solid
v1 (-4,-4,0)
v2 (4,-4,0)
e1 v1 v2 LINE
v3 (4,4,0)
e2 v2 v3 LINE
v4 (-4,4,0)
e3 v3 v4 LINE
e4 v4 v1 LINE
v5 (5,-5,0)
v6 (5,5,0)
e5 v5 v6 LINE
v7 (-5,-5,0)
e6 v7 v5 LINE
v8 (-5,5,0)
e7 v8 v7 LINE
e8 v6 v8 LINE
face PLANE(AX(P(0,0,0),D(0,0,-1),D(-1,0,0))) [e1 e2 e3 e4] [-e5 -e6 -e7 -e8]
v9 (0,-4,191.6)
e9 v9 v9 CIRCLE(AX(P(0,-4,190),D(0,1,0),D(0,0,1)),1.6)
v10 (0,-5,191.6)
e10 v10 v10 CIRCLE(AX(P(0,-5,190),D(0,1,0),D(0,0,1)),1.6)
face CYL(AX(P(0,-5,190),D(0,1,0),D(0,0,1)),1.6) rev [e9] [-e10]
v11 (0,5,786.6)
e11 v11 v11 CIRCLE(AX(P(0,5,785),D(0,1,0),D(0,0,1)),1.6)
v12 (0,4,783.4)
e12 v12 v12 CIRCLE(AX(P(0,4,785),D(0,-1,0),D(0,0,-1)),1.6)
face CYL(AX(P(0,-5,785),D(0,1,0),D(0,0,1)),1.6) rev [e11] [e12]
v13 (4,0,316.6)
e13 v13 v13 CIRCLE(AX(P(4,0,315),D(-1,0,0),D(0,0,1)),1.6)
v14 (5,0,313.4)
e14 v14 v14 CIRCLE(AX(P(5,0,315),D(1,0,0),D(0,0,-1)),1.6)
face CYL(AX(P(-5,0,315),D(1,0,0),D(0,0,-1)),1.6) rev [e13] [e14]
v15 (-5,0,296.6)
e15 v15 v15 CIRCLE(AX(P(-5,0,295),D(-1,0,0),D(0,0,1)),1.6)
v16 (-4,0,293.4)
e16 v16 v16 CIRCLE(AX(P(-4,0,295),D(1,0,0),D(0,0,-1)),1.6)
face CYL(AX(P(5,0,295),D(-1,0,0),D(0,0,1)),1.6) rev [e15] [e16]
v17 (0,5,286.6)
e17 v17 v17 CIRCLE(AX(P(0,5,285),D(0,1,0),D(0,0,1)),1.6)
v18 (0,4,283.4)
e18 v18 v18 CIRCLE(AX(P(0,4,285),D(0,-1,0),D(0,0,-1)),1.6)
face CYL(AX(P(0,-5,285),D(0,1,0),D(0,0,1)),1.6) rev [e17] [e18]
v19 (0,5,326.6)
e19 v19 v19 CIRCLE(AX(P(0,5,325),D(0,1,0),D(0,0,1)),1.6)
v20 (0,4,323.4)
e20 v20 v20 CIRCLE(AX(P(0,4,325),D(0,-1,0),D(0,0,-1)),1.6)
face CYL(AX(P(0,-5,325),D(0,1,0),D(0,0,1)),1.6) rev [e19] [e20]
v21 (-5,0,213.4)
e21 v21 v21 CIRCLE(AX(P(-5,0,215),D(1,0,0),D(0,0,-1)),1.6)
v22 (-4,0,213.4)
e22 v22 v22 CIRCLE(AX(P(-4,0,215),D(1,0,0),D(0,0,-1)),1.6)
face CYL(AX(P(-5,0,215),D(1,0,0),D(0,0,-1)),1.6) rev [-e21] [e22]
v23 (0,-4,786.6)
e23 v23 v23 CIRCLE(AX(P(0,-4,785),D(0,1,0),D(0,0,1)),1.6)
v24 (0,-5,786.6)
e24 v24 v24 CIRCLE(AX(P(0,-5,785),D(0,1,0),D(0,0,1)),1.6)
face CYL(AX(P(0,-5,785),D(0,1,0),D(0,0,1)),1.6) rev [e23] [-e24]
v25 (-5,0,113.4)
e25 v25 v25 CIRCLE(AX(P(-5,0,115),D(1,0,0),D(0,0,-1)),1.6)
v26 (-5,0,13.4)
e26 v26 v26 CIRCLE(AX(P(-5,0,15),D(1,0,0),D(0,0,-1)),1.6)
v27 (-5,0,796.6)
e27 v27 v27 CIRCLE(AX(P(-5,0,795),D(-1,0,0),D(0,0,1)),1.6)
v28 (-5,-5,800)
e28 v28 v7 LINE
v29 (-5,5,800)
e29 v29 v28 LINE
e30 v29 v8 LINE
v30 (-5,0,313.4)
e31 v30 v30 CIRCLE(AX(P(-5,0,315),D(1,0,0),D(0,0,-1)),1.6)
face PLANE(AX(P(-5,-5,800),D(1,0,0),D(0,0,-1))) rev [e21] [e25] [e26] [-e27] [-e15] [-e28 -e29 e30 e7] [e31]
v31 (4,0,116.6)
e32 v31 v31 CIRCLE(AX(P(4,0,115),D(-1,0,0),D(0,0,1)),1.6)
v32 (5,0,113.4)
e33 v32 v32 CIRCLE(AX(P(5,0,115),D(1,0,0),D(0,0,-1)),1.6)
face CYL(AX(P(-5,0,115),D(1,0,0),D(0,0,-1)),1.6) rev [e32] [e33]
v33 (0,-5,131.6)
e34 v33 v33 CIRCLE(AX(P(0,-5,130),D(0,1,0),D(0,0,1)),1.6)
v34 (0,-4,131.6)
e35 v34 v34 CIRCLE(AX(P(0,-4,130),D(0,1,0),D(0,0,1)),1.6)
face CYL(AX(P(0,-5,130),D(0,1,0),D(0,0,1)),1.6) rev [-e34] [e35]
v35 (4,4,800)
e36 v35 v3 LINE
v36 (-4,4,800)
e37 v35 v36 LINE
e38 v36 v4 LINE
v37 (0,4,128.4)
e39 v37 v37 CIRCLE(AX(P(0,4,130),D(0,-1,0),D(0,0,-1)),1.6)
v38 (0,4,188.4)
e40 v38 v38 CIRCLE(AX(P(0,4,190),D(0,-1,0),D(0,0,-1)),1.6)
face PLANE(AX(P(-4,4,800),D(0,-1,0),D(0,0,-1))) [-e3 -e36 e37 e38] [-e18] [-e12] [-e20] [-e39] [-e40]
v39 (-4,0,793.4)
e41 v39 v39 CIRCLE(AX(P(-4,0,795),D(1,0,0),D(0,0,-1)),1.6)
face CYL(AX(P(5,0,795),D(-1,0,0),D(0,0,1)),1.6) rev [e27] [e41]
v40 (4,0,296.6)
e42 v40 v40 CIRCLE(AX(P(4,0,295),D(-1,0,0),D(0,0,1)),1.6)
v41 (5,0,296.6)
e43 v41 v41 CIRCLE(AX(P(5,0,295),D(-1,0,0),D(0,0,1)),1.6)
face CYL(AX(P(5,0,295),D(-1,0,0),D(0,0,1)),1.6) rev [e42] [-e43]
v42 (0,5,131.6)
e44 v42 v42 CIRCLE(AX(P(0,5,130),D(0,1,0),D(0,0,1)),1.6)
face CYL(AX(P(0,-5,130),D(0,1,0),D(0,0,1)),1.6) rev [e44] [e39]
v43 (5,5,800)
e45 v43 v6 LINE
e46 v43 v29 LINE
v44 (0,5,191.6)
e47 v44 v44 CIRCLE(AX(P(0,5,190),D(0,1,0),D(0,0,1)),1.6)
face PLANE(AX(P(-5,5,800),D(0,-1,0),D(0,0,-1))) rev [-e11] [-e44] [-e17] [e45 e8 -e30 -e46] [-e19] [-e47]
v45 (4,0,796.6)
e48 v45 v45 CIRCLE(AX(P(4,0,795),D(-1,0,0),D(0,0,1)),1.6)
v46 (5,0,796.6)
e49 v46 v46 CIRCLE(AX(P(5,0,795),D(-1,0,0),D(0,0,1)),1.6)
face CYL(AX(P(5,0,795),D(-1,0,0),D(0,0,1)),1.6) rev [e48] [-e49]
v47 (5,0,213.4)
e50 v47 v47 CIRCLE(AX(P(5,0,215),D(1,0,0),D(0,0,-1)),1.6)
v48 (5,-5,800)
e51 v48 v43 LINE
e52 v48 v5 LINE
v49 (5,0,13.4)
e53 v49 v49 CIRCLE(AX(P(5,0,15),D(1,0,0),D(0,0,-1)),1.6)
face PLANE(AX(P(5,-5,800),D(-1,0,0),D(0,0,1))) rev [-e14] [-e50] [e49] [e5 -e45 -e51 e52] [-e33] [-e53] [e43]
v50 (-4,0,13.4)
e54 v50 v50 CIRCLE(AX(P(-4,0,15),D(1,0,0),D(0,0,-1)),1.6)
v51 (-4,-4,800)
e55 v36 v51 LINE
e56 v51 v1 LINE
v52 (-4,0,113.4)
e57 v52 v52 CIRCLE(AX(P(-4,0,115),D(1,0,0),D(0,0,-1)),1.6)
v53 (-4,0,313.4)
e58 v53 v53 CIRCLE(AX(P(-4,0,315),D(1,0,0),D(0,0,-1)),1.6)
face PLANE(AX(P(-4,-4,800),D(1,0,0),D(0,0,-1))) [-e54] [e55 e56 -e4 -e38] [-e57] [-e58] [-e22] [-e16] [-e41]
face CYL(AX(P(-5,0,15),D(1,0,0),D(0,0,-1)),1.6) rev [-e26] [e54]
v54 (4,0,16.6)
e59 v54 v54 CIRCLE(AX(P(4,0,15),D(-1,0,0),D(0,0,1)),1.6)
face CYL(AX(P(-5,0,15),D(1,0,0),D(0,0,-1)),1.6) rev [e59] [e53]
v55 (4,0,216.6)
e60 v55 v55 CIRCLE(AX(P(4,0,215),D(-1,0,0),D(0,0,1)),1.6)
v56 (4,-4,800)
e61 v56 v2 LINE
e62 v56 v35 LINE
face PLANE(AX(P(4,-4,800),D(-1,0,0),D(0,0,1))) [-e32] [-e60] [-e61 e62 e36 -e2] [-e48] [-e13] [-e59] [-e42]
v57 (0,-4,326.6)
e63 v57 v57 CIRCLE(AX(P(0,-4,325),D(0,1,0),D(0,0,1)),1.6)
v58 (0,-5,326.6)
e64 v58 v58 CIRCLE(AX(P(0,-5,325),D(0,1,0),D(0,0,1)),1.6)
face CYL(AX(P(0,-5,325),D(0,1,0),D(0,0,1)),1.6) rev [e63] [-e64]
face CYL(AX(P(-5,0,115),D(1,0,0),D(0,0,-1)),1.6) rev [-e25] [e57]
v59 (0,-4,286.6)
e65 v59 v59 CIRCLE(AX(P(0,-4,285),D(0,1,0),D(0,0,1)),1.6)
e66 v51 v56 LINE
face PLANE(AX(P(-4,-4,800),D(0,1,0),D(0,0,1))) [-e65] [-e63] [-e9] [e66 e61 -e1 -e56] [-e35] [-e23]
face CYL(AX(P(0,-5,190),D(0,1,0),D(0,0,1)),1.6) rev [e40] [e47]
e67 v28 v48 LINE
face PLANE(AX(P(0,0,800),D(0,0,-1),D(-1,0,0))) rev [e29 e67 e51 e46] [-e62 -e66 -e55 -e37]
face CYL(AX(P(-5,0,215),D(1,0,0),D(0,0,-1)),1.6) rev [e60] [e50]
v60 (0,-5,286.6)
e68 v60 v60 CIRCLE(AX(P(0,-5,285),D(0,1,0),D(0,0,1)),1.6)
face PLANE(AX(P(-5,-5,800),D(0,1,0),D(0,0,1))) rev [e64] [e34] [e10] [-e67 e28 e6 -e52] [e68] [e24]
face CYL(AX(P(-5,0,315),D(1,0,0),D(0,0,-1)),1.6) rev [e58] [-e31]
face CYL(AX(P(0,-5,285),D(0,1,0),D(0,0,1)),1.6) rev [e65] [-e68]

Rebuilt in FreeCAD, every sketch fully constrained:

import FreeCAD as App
import Part
import Sketcher
Q = App.Units.Quantity


def add_polygon(sketch, points):
    """Adds a closed chain of lines whose ends are joined by coincident constraints."""
    first, n = sketch.GeometryCount, len(points)
    for a, b in zip(points, points[1:] + points[:1]):
        sketch.addGeometry(Part.LineSegment(App.Vector(*a, 0), App.Vector(*b, 0)), False)
    for i in range(n):
        sketch.addConstraint(Sketcher.Constraint("Coincident", first + i, 2, first + (i + 1) % n, 1))

doc = App.newDocument("Part")
body = doc.addObject("PartDesign::Body", "Body")

# Sketch on XY plane
sketch1 = body.newObject("Sketcher::SketchObject", "Sketch")
sketch1.AttachmentSupport = (doc.getObject("XY_Plane"), [""])
sketch1.MapMode = "FlatFace"
add_polygon(sketch1, [(-5, 5), (-5, -5), (5, -5), (5, 5)])  # lines 0-3
add_polygon(sketch1, [(4, -4), (-4, -4), (-4, 4), (4, 4)])  # lines 4-7
sketch1.addConstraint([
    Sketcher.Constraint("Vertical", 0),
    Sketcher.Constraint("Horizontal", 1),
    Sketcher.Constraint("Vertical", 2),
    Sketcher.Constraint("Horizontal", 3),
    Sketcher.Constraint("Horizontal", 4),
    Sketcher.Constraint("Vertical", 5),
    Sketcher.Constraint("Horizontal", 6),
    Sketcher.Constraint("Vertical", 7),
    Sketcher.Constraint("Symmetric", 0, 2, 2, 2, -1, 1),
    Sketcher.Constraint("Symmetric", 4, 2, 6, 2, -1, 1),
    Sketcher.Constraint("Equal", 3, 0),
    Sketcher.Constraint("Equal", 6, 5),
    Sketcher.Constraint("DistanceX", 1, 1, 1, 2, Q("10 mm")),
    Sketcher.Constraint("DistanceX", 4, 2, 4, 1, Q("8 mm")),
])
pad1 = body.newObject("PartDesign::Pad", "Pad")
pad1.Profile = sketch1
pad1.Length = 800

# Sketch on XZ plane
sketch2 = body.newObject("Sketcher::SketchObject", "Sketch001")
sketch2.AttachmentSupport = (doc.getObject("XZ_Plane"), [""])
sketch2.MapMode = "FlatFace"
sketch2.AttachmentOffset = App.Placement(App.Vector(0, 0, -5), App.Rotation())
sketch2.addGeometry([
    Part.Circle(App.Vector(0, 785, 0), App.Vector(0, 0, 1), 1.6),  # 0
    Part.Circle(App.Vector(0, 190, 0), App.Vector(0, 0, 1), 1.6),  # 1
    Part.Circle(App.Vector(0, 130, 0), App.Vector(0, 0, 1), 1.6),  # 2
    Part.Circle(App.Vector(0, 325, 0), App.Vector(0, 0, 1), 1.6),  # 3
    Part.Circle(App.Vector(0, 285, 0), App.Vector(0, 0, 1), 1.6),  # 4
], False)
sketch2.addConstraint([
    Sketcher.Constraint("Equal", 0, 1),
    Sketcher.Constraint("Equal", 1, 2),
    Sketcher.Constraint("Equal", 2, 3),
    Sketcher.Constraint("Equal", 3, 4),
    Sketcher.Constraint("PointOnObject", 0, 3, -2),
    Sketcher.Constraint("PointOnObject", 1, 3, -2),
    Sketcher.Constraint("PointOnObject", 2, 3, -2),
    Sketcher.Constraint("PointOnObject", 3, 3, -2),
    Sketcher.Constraint("PointOnObject", 4, 3, -2),
    Sketcher.Constraint("Diameter", 0, Q("3.2 mm")),
    Sketcher.Constraint("DistanceY", -1, 1, 0, 3, Q("785 mm")),
    Sketcher.Constraint("DistanceY", -1, 1, 1, 3, Q("190 mm")),
    Sketcher.Constraint("DistanceY", -1, 1, 2, 3, Q("130 mm")),
    Sketcher.Constraint("DistanceY", -1, 1, 3, 3, Q("325 mm")),
    Sketcher.Constraint("DistanceY", -1, 1, 4, 3, Q("285 mm")),
])
pocket1 = body.newObject("PartDesign::Pocket", "Pocket")
pocket1.Profile = sketch2
pocket1.Type = "ThroughAll"
pocket1.Reversed = True

# Sketch on YZ plane
sketch3 = body.newObject("Sketcher::SketchObject", "Sketch002")
sketch3.AttachmentSupport = (doc.getObject("YZ_Plane"), [""])
sketch3.MapMode = "FlatFace"
sketch3.AttachmentOffset = App.Placement(App.Vector(0, 0, -5), App.Rotation())
sketch3.addGeometry([
    Part.Circle(App.Vector(0, 795, 0), App.Vector(0, 0, 1), 1.6),
    Part.Circle(App.Vector(0, 295, 0), App.Vector(0, 0, 1), 1.6),
], False)
sketch3.addConstraint([
    Sketcher.Constraint("Equal", 0, 1),
    Sketcher.Constraint("PointOnObject", 0, 3, -2),
    Sketcher.Constraint("PointOnObject", 1, 3, -2),
    Sketcher.Constraint("Diameter", 0, Q("3.2 mm")),
    Sketcher.Constraint("DistanceY", -1, 1, 0, 3, Q("795 mm")),
    Sketcher.Constraint("DistanceY", -1, 1, 1, 3, Q("295 mm")),
])
pocket2 = body.newObject("PartDesign::Pocket", "Pocket001")
pocket2.Profile = sketch3
pocket2.Type = "ThroughAll"
pocket2.Reversed = True

# Sketch on YZ plane
sketch4 = body.newObject("Sketcher::SketchObject", "Sketch003")
sketch4.AttachmentSupport = (doc.getObject("YZ_Plane"), [""])
sketch4.MapMode = "FlatFace"
sketch4.AttachmentOffset = App.Placement(App.Vector(0, 0, 5), App.Rotation())
sketch4.addGeometry(Part.Circle(App.Vector(0, 15, 0), App.Vector(0, 0, 1), 1.6), False)
sketch4.addConstraint([
    Sketcher.Constraint("PointOnObject", 0, 3, -2),
    Sketcher.Constraint("Diameter", 0, Q("3.2 mm")),
    Sketcher.Constraint("DistanceY", -1, 1, 0, 3, Q("15 mm")),
])
pocket3 = body.newObject("PartDesign::Pocket", "Pocket002")
pocket3.Profile = sketch4
pocket3.Type = "ThroughAll"
doc.recompute()

linearpattern = body.newObject("PartDesign::LinearPattern", "LinearPattern")
linearpattern.Originals = [pocket3]
linearpattern.Direction = (doc.getObject("Z_Axis"), [""])
linearpattern.Mode = "offset"
linearpattern.Offset = 100
linearpattern.Occurrences = 4
body.Tip = linearpattern

doc.recompute()
